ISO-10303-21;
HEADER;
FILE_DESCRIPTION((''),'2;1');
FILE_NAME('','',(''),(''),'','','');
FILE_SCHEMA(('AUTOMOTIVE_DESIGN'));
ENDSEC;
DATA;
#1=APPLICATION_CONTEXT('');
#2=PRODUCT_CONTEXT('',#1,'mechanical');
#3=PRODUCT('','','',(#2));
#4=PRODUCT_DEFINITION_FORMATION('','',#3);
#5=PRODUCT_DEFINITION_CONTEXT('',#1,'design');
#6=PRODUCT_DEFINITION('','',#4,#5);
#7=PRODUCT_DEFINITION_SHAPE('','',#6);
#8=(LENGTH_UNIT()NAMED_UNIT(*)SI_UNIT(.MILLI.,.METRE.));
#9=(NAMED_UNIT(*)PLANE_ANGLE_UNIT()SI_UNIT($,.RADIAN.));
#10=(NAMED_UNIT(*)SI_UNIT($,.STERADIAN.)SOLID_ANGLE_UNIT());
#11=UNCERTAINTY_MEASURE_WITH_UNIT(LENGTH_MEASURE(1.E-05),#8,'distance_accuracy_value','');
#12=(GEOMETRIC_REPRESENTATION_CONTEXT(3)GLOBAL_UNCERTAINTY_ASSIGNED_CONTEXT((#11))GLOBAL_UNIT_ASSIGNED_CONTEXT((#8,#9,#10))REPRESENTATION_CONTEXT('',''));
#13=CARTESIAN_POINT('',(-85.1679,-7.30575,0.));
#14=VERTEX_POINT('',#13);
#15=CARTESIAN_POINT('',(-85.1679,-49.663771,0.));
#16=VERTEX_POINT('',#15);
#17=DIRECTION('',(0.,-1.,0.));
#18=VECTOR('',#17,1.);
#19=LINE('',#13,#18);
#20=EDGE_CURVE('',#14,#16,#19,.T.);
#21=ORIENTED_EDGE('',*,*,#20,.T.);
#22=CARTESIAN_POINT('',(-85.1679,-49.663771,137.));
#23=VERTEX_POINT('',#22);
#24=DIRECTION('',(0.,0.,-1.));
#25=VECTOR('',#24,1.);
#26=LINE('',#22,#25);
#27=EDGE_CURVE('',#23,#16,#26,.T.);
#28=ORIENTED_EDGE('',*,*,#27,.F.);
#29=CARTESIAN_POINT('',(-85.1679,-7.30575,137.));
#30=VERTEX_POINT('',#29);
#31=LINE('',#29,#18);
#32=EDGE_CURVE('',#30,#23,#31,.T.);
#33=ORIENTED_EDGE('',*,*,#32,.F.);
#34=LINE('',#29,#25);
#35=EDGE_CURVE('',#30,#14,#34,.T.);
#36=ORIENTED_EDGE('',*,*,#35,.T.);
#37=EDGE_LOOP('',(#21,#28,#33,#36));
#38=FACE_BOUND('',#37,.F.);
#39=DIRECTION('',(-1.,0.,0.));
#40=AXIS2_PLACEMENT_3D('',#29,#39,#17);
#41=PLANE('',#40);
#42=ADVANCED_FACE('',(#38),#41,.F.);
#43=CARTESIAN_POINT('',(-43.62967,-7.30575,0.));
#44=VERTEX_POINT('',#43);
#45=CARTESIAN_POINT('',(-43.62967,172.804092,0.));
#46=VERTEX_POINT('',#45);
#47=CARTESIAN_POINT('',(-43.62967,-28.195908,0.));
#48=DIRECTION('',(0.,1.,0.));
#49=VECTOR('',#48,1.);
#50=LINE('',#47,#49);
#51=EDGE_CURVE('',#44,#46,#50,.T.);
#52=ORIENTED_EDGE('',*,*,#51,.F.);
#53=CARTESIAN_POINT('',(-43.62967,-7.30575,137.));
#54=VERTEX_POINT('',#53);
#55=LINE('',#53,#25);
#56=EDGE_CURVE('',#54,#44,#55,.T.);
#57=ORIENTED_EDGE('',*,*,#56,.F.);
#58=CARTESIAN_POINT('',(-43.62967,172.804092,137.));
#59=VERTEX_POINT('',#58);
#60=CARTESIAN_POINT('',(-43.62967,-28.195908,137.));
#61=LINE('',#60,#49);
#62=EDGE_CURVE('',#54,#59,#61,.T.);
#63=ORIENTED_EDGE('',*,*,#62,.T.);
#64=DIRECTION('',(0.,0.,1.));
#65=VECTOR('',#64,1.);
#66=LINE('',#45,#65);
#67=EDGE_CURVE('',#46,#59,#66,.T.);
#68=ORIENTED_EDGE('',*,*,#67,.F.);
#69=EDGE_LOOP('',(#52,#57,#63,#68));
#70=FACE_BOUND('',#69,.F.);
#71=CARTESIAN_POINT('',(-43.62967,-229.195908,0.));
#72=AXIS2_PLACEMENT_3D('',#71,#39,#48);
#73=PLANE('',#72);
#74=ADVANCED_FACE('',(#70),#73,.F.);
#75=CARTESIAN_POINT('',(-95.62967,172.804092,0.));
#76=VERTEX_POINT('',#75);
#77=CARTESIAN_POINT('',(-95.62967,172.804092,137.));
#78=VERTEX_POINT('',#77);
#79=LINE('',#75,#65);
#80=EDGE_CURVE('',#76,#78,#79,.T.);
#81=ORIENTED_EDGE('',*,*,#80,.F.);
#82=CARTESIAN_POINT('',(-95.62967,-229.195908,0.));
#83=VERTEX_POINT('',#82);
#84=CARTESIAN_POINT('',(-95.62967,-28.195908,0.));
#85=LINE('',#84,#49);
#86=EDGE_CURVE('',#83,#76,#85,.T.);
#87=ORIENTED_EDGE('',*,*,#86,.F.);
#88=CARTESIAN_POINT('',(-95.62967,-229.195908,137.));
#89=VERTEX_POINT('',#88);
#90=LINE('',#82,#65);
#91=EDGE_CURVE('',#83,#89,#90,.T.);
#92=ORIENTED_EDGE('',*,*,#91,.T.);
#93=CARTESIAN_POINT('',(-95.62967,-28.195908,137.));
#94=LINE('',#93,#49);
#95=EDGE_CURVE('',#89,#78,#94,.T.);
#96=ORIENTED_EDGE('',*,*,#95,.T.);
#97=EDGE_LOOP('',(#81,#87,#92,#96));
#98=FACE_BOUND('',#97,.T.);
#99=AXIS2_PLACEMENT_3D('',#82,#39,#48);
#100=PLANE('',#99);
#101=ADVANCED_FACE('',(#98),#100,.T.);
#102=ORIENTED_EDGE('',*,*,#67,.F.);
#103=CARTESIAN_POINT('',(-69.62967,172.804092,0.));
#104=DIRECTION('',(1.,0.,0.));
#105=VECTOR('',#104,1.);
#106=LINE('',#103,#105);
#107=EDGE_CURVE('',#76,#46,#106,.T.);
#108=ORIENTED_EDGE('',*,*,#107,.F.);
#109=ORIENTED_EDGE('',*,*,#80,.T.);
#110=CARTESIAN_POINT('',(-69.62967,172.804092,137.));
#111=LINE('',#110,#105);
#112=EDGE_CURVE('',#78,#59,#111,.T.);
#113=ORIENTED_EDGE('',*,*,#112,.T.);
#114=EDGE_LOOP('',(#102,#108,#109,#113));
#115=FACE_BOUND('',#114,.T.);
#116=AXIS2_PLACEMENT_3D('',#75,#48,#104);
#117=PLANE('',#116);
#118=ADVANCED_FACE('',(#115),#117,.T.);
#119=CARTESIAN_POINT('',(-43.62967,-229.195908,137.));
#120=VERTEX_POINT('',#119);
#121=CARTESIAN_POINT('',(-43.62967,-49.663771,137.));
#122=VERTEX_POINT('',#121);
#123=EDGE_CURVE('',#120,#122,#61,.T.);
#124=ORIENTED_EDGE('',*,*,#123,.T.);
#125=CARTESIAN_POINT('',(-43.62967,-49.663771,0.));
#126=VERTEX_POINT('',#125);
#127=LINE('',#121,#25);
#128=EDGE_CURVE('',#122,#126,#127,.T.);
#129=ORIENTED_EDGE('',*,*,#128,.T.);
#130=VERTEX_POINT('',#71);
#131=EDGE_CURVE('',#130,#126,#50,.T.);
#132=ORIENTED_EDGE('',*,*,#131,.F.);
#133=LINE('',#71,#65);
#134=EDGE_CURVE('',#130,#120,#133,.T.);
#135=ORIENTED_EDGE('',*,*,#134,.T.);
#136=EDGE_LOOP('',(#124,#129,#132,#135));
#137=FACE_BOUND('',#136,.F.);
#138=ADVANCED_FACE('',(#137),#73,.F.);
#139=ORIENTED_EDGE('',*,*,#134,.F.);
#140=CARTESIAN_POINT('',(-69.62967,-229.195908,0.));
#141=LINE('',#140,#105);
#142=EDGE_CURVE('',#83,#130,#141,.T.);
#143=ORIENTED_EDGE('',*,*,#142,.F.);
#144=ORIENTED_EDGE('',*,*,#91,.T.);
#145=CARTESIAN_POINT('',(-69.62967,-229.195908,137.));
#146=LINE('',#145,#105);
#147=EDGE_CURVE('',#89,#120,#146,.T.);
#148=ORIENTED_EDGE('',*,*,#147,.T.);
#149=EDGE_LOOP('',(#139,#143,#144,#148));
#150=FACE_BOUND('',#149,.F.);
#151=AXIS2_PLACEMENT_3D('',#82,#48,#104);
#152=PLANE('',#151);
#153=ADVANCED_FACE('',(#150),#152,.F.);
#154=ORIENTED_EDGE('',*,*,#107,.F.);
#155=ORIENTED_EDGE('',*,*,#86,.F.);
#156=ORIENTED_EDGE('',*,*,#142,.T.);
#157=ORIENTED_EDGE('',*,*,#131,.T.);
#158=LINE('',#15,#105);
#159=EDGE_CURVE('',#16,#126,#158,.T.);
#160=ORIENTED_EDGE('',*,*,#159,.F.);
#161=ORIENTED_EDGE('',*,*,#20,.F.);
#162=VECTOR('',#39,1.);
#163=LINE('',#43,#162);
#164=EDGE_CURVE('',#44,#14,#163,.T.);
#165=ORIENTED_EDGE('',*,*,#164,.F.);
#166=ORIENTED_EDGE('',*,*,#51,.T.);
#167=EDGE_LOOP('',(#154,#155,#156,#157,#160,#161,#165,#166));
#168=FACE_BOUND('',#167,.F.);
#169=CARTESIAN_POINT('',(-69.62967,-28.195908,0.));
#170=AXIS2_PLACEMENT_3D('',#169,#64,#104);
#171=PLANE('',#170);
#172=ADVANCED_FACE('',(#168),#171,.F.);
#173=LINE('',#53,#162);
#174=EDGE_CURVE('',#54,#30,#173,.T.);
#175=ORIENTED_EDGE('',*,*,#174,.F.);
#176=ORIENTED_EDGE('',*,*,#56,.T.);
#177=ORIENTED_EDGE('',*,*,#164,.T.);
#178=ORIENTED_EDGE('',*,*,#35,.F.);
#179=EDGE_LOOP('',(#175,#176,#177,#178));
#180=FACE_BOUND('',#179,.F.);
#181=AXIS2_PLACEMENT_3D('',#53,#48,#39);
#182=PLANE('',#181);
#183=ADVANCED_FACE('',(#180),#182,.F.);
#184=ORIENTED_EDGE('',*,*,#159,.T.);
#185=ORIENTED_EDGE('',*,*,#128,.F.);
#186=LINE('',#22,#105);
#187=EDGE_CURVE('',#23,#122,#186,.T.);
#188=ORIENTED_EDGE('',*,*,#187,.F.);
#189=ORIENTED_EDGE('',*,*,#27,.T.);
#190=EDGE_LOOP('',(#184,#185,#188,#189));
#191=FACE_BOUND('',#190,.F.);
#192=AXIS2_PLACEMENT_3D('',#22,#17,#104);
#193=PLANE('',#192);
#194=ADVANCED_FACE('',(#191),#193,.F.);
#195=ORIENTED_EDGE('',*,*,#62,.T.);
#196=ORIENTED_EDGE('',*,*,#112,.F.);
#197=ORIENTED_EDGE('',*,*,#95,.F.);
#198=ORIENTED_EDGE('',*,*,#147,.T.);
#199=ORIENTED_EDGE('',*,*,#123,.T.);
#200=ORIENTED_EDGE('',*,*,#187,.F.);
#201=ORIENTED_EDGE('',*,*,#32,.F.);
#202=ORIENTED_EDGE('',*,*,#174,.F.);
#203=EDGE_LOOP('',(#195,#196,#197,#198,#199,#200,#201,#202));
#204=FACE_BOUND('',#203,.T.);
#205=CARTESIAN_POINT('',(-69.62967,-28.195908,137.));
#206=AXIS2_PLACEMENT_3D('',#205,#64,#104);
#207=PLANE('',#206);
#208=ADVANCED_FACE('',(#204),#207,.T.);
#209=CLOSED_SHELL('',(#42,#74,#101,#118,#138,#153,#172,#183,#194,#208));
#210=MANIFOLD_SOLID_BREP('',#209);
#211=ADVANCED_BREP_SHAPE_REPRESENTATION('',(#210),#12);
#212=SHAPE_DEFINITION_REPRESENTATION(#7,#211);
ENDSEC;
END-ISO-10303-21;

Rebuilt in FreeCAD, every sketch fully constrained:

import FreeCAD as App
import Part
import Sketcher

V = App.Vector
Q = App.Units.Quantity

doc = App.newDocument("Part")
body = doc.addObject("PartDesign::Body", "Body")

# Sketch on XY plane
sketch1 = doc.addObject("Sketcher::SketchObject", "Sketch")
body.addObject(sketch1)
sketch1.AttachmentSupport = (doc.XY_Plane, [""])
sketch1.MapMode = "FlatFace"
sketch1.addGeometry(Part.LineSegment(V(-96, 173, 0), V(-96, -229, 0)), False)
sketch1.addGeometry(Part.LineSegment(V(-96, -229, 0), V(-44, -229, 0)), False)
sketch1.addGeometry(Part.LineSegment(V(-44, -229, 0), V(-44, 173, 0)), False)
sketch1.addGeometry(Part.LineSegment(V(-44, 173, 0), V(-96, 173, 0)), False)
sketch1.addConstraint(Sketcher.Constraint("Coincident", 0, 2, 1, 1))
sketch1.addConstraint(Sketcher.Constraint("Coincident", 1, 2, 2, 1))
sketch1.addConstraint(Sketcher.Constraint("Coincident", 2, 2, 3, 1))
sketch1.addConstraint(Sketcher.Constraint("Coincident", 3, 2, 0, 1))
sketch1.addConstraint(Sketcher.Constraint("Vertical", 0))
sketch1.addConstraint(Sketcher.Constraint("Horizontal", 1))
sketch1.addConstraint(Sketcher.Constraint("Vertical", 2))
sketch1.addConstraint(Sketcher.Constraint("Horizontal", 3))
sketch1.addConstraint(Sketcher.Constraint("DistanceX", 1, 1, 1, 2, Q("52 mm")))
sketch1.addConstraint(Sketcher.Constraint("DistanceY", 0, 2, 0, 1, Q("402 mm")))
sketch1.addConstraint(Sketcher.Constraint("DistanceX", 0, 2, -1, 1, Q("95.62967 mm")))
sketch1.addConstraint(Sketcher.Constraint("DistanceY", 0, 2, -1, 1, Q("229.195908 mm")))
pad1 = doc.addObject("PartDesign::Pad", "Pad")
body.addObject(pad1)
pad1.Profile = sketch1
pad1.Length = 137

# Sketch on XY plane
sketch2 = doc.addObject("Sketcher::SketchObject", "Sketch001")
body.addObject(sketch2)
sketch2.AttachmentSupport = (doc.XY_Plane, [""])
sketch2.MapMode = "FlatFace"
sketch2.AttachmentOffset = App.Placement(V(0, 0, 137), App.Rotation())
sketch2.addGeometry(Part.LineSegment(V(-44, -50, 0), V(-44, -7, 0)), False)
sketch2.addGeometry(Part.LineSegment(V(-44, -7, 0), V(-85, -7, 0)), False)
sketch2.addGeometry(Part.LineSegment(V(-85, -7, 0), V(-85, -50, 0)), False)
sketch2.addGeometry(Part.LineSegment(V(-85, -50, 0), V(-44, -50, 0)), False)
sketch2.addConstraint(Sketcher.Constraint("Coincident", 0, 2, 1, 1))
sketch2.addConstraint(Sketcher.Constraint("Coincident", 1, 2, 2, 1))
sketch2.addConstraint(Sketcher.Constraint("Coincident", 2, 2, 3, 1))
sketch2.addConstraint(Sketcher.Constraint("Coincident", 3, 2, 0, 1))
sketch2.addConstraint(Sketcher.Constraint("Vertical", 0))
sketch2.addConstraint(Sketcher.Constraint("Horizontal", 1))
sketch2.addConstraint(Sketcher.Constraint("Vertical", 2))
sketch2.addConstraint(Sketcher.Constraint("Horizontal", 3))
sketch2.addConstraint(Sketcher.Constraint("DistanceX", 1, 2, 1, 1, Q("41.53823 mm")))
sketch2.addConstraint(Sketcher.Constraint("DistanceY", 0, 1, 0, 2, Q("42.358021 mm")))
sketch2.addConstraint(Sketcher.Constraint("DistanceX", 1, 2, -1, 1, Q("85.1679 mm")))
sketch2.addConstraint(Sketcher.Constraint("DistanceY", 0, 2, -1, 1, Q("7.30575 mm")))
pocket1 = doc.addObject("PartDesign::Pocket", "Pocket")
body.addObject(pocket1)
pocket1.Profile = sketch2
pocket1.Length = 137

doc.recompute()
